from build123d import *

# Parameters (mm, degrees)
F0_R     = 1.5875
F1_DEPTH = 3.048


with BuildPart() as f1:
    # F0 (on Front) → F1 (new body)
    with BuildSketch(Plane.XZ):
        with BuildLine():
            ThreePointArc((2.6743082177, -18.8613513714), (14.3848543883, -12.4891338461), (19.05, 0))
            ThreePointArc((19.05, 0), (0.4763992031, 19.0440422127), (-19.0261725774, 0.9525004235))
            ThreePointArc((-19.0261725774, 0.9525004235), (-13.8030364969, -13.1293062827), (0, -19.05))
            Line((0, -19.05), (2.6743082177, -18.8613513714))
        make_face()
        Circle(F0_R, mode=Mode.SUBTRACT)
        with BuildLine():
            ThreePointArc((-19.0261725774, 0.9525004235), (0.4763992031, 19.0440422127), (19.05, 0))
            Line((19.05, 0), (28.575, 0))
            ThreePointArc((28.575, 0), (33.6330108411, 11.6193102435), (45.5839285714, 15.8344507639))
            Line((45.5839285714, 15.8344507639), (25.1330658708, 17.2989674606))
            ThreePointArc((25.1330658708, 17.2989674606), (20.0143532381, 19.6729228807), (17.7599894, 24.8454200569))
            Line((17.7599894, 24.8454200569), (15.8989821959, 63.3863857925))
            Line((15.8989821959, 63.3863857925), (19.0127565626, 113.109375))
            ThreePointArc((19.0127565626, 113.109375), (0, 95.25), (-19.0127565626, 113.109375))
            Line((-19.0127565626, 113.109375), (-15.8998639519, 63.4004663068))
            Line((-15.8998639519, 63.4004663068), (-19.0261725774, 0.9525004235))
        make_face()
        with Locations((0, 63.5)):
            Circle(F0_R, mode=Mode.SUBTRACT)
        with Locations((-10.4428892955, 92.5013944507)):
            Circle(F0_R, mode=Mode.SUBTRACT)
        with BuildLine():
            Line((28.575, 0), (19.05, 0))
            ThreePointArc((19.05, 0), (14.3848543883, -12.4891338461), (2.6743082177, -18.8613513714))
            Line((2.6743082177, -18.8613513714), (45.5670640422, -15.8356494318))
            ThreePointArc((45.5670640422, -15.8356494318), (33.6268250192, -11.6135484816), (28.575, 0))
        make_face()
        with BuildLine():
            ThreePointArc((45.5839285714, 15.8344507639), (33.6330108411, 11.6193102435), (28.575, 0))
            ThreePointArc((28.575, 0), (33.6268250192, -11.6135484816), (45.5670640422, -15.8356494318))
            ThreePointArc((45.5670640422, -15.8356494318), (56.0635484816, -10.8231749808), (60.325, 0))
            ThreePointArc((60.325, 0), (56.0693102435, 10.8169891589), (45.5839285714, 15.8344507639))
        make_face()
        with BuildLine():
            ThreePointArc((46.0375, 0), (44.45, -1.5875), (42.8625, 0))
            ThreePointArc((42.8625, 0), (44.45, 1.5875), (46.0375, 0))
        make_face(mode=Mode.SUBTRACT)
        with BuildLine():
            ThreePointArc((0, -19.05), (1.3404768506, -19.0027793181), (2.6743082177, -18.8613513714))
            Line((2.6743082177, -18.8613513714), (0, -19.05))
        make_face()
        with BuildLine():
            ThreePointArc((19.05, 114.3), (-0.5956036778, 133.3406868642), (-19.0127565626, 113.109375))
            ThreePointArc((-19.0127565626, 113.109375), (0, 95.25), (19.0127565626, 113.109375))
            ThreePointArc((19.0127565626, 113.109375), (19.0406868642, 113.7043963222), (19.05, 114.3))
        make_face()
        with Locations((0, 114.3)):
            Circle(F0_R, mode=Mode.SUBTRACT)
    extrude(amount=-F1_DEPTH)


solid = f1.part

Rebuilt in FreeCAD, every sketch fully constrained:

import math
import FreeCAD as App
import Part
import Sketcher
from FreeCAD import Vector
Q = App.Units.Quantity

doc = App.newDocument("Part")
body = doc.addObject("PartDesign::Body", "Body")

sketch1 = body.newObject("Sketcher::SketchObject", "Sketch")
sketch1.AttachmentSupport = (doc.getObject("XZ_Plane"), [""])
sketch1.MapMode = "FlatFace"
sketch1.addGeometry(Part.ArcOfCircle(Part.Circle(Vector(0, 0, 0), Vector(0, 0, 1), 19.1), math.radians(177), math.radians(270)), False)
sketch1.addGeometry(Part.ArcOfCircle(Part.Circle(Vector(0, 0, 0), Vector(0, 0, 1), 19), math.radians(-90), math.radians(-81.93)), False)
sketch1.addGeometry(Part.LineSegment(Vector(2.7, -18.9, 0), Vector(45.6, -15.8, 0)), False)
sketch1.addGeometry(Part.ArcOfCircle(Part.Circle(Vector(44.5, 0, 0), Vector(0, 0, 1), 15.9), math.radians(-86), math.radians(0)), False)
sketch1.addGeometry(Part.ArcOfCircle(Part.Circle(Vector(44.5, 0, 0), Vector(0, 0, 1), 15.9), math.radians(0), math.radians(86)), False)
sketch1.addGeometry(Part.LineSegment(Vector(45.6, 15.8, 0), Vector(25.1, 17.3, 0)), False)
sketch1.addGeometry(Part.ArcOfCircle(Part.Circle(Vector(25.7, 25.2, 0), Vector(0, 0, 1), 8), math.radians(-177), math.radians(-94)), False)
sketch1.addGeometry(Part.LineSegment(Vector(17.8, 24.8, 0), Vector(15.9, 63.4, 0)), False)
sketch1.addGeometry(Part.LineSegment(Vector(15.9, 63.4, 0), Vector(19, 113.1, 0)), False)
sketch1.addGeometry(Part.ArcOfCircle(Part.Circle(Vector(0, 114.3, 0), Vector(0, 0, 1), 19), math.radians(-3.58), math.radians(0)), False)
sketch1.addGeometry(Part.ArcOfCircle(Part.Circle(Vector(0, 114.3, 0), Vector(0, 0, 1), 19.1), math.radians(0), math.radians(184)), False)
sketch1.addGeometry(Part.LineSegment(Vector(-19, 113.1, 0), Vector(-15.9, 63.4, 0)), False)
sketch1.addGeometry(Part.LineSegment(Vector(-15.9, 63.4, 0), Vector(-19, 1, 0)), False)
sketch1.addGeometry(Part.Circle(Vector(0, 0, 0), Vector(0, 0, 1), 1.6), False)
sketch1.addGeometry(Part.Circle(Vector(44.5, 0, 0), Vector(0, 0, 1), 1.6), False)
sketch1.addGeometry(Part.Circle(Vector(0, 63.5, 0), Vector(0, 0, 1), 1.6), False)
sketch1.addGeometry(Part.Circle(Vector(-10.4, 92.5, 0), Vector(0, 0, 1), 1.6), False)
sketch1.addGeometry(Part.Circle(Vector(0, 114.3, 0), Vector(0, 0, 1), 1.6), False)
sketch1.addConstraint(Sketcher.Constraint("Tangent", 0, 2, 1, 1))
sketch1.addConstraint(Sketcher.Constraint("Coincident", 1, 2, 2, 1))
sketch1.addConstraint(Sketcher.Constraint("Tangent", 2, 2, 3, 1))
sketch1.addConstraint(Sketcher.Constraint("Tangent", 3, 2, 4, 1))
sketch1.addConstraint(Sketcher.Constraint("Tangent", 4, 2, 5, 1))
sketch1.addConstraint(Sketcher.Constraint("Tangent", 5, 2, 6, 2))
sketch1.addConstraint(Sketcher.Constraint("Tangent", 6, 1, 7, 1))
sketch1.addConstraint(Sketcher.Constraint("Coincident", 7, 2, 8, 1))
sketch1.addConstraint(Sketcher.Constraint("Tangent", 8, 2, 9, 1))
sketch1.addConstraint(Sketcher.Constraint("Tangent", 9, 2, 10, 1))
sketch1.addConstraint(Sketcher.Constraint("Tangent", 10, 2, 11, 1))
sketch1.addConstraint(Sketcher.Constraint("Coincident", 11, 2, 12, 1))
sketch1.addConstraint(Sketcher.Constraint("Tangent", 12, 2, 0, 1))
sketch1.addConstraint(Sketcher.Constraint("Coincident", 0, 3, -1, 1))
sketch1.addConstraint(Sketcher.Constraint("Coincident", 13, 3, -1, 1))
sketch1.addConstraint(Sketcher.Constraint("Coincident", 14, 3, 3, 3))
sketch1.addConstraint(Sketcher.Constraint("Coincident", 17, 3, 9, 3))
sketch1.addConstraint(Sketcher.Constraint("Equal", 0, 1))
sketch1.addConstraint(Sketcher.Constraint("Equal", 3, 4))
sketch1.addConstraint(Sketcher.Constraint("Equal", 1, 9))
sketch1.addConstraint(Sketcher.Constraint("Equal", 9, 10))
sketch1.addConstraint(Sketcher.Constraint("Equal", 13, 14))
sketch1.addConstraint(Sketcher.Constraint("Equal", 14, 15))
sketch1.addConstraint(Sketcher.Constraint("Equal", 15, 16))
sketch1.addConstraint(Sketcher.Constraint("Equal", 16, 17))
sketch1.addConstraint(Sketcher.Constraint("Symmetric", 8, 2, 10, 2, -2))
sketch1.addConstraint(Sketcher.Constraint("PointOnObject", 3, 3, -1))
sketch1.addConstraint(Sketcher.Constraint("PointOnObject", 15, 3, -2))
sketch1.addConstraint(Sketcher.Constraint("PointOnObject", 0, 2, -2))
sketch1.addConstraint(Sketcher.Constraint("PointOnObject", 3, 2, -1))
sketch1.addConstraint(Sketcher.Constraint("Horizontal", 17, 3, 9, 2))
sketch1.addConstraint(Sketcher.Constraint("Radius", 0, Q("0.75 in")))
sketch1.addConstraint(Sketcher.Constraint("Diameter", 13, Q("0.125 in")))
sketch1.addConstraint(Sketcher.Constraint("Radius", 3, Q("0.625 in")))
sketch1.addConstraint(Sketcher.Constraint("Radius", 6, Q("0.313 in")))
sketch1.addConstraint(Sketcher.Constraint("DistanceY", 15, 3, 9, 3, Q("2 in")))
sketch1.addConstraint(Sketcher.Constraint("DistanceY", -1, 1, 9, 3, Q("4.5 in")))
sketch1.addConstraint(Sketcher.Constraint("DistanceX", -1, 1, 3, 3, Q("1.75 in")))
sketch1.addConstraint(Sketcher.Constraint("DistanceY", -1, 1, 8, 2, Q("4.453125 in")))
sketch1.addConstraint(Sketcher.Constraint("DistanceY", -1, 1, 12, 2, Q("0.0375 in")))
sketch1.addConstraint(Sketcher.Constraint("DistanceY", 1, 2, 2, 2, Q("3.025702 mm")))
sketch1.addConstraint(Sketcher.Constraint("Distance", 7, Q("38.58587 mm")))
sketch1.addConstraint(Sketcher.Constraint("Distance", 8, Q("49.82039 mm")))
sketch1.addConstraint(Sketcher.Constraint("DistanceY", -1, 1, 6, 3, Q("25.22886 mm")))
sketch1.addConstraint(Sketcher.Constraint("DistanceX", 16, 3, -1, 1, Q("10.442889 mm")))
sketch1.addConstraint(Sketcher.Constraint("DistanceY", 7, 2, 16, 3, Q("29.115009 mm")))
pad1 = body.newObject("PartDesign::Pad", "Pad")
pad1.Profile = sketch1
pad1.Length = Q("0.12 in")
pad1.Reversed = True

doc.recompute()
